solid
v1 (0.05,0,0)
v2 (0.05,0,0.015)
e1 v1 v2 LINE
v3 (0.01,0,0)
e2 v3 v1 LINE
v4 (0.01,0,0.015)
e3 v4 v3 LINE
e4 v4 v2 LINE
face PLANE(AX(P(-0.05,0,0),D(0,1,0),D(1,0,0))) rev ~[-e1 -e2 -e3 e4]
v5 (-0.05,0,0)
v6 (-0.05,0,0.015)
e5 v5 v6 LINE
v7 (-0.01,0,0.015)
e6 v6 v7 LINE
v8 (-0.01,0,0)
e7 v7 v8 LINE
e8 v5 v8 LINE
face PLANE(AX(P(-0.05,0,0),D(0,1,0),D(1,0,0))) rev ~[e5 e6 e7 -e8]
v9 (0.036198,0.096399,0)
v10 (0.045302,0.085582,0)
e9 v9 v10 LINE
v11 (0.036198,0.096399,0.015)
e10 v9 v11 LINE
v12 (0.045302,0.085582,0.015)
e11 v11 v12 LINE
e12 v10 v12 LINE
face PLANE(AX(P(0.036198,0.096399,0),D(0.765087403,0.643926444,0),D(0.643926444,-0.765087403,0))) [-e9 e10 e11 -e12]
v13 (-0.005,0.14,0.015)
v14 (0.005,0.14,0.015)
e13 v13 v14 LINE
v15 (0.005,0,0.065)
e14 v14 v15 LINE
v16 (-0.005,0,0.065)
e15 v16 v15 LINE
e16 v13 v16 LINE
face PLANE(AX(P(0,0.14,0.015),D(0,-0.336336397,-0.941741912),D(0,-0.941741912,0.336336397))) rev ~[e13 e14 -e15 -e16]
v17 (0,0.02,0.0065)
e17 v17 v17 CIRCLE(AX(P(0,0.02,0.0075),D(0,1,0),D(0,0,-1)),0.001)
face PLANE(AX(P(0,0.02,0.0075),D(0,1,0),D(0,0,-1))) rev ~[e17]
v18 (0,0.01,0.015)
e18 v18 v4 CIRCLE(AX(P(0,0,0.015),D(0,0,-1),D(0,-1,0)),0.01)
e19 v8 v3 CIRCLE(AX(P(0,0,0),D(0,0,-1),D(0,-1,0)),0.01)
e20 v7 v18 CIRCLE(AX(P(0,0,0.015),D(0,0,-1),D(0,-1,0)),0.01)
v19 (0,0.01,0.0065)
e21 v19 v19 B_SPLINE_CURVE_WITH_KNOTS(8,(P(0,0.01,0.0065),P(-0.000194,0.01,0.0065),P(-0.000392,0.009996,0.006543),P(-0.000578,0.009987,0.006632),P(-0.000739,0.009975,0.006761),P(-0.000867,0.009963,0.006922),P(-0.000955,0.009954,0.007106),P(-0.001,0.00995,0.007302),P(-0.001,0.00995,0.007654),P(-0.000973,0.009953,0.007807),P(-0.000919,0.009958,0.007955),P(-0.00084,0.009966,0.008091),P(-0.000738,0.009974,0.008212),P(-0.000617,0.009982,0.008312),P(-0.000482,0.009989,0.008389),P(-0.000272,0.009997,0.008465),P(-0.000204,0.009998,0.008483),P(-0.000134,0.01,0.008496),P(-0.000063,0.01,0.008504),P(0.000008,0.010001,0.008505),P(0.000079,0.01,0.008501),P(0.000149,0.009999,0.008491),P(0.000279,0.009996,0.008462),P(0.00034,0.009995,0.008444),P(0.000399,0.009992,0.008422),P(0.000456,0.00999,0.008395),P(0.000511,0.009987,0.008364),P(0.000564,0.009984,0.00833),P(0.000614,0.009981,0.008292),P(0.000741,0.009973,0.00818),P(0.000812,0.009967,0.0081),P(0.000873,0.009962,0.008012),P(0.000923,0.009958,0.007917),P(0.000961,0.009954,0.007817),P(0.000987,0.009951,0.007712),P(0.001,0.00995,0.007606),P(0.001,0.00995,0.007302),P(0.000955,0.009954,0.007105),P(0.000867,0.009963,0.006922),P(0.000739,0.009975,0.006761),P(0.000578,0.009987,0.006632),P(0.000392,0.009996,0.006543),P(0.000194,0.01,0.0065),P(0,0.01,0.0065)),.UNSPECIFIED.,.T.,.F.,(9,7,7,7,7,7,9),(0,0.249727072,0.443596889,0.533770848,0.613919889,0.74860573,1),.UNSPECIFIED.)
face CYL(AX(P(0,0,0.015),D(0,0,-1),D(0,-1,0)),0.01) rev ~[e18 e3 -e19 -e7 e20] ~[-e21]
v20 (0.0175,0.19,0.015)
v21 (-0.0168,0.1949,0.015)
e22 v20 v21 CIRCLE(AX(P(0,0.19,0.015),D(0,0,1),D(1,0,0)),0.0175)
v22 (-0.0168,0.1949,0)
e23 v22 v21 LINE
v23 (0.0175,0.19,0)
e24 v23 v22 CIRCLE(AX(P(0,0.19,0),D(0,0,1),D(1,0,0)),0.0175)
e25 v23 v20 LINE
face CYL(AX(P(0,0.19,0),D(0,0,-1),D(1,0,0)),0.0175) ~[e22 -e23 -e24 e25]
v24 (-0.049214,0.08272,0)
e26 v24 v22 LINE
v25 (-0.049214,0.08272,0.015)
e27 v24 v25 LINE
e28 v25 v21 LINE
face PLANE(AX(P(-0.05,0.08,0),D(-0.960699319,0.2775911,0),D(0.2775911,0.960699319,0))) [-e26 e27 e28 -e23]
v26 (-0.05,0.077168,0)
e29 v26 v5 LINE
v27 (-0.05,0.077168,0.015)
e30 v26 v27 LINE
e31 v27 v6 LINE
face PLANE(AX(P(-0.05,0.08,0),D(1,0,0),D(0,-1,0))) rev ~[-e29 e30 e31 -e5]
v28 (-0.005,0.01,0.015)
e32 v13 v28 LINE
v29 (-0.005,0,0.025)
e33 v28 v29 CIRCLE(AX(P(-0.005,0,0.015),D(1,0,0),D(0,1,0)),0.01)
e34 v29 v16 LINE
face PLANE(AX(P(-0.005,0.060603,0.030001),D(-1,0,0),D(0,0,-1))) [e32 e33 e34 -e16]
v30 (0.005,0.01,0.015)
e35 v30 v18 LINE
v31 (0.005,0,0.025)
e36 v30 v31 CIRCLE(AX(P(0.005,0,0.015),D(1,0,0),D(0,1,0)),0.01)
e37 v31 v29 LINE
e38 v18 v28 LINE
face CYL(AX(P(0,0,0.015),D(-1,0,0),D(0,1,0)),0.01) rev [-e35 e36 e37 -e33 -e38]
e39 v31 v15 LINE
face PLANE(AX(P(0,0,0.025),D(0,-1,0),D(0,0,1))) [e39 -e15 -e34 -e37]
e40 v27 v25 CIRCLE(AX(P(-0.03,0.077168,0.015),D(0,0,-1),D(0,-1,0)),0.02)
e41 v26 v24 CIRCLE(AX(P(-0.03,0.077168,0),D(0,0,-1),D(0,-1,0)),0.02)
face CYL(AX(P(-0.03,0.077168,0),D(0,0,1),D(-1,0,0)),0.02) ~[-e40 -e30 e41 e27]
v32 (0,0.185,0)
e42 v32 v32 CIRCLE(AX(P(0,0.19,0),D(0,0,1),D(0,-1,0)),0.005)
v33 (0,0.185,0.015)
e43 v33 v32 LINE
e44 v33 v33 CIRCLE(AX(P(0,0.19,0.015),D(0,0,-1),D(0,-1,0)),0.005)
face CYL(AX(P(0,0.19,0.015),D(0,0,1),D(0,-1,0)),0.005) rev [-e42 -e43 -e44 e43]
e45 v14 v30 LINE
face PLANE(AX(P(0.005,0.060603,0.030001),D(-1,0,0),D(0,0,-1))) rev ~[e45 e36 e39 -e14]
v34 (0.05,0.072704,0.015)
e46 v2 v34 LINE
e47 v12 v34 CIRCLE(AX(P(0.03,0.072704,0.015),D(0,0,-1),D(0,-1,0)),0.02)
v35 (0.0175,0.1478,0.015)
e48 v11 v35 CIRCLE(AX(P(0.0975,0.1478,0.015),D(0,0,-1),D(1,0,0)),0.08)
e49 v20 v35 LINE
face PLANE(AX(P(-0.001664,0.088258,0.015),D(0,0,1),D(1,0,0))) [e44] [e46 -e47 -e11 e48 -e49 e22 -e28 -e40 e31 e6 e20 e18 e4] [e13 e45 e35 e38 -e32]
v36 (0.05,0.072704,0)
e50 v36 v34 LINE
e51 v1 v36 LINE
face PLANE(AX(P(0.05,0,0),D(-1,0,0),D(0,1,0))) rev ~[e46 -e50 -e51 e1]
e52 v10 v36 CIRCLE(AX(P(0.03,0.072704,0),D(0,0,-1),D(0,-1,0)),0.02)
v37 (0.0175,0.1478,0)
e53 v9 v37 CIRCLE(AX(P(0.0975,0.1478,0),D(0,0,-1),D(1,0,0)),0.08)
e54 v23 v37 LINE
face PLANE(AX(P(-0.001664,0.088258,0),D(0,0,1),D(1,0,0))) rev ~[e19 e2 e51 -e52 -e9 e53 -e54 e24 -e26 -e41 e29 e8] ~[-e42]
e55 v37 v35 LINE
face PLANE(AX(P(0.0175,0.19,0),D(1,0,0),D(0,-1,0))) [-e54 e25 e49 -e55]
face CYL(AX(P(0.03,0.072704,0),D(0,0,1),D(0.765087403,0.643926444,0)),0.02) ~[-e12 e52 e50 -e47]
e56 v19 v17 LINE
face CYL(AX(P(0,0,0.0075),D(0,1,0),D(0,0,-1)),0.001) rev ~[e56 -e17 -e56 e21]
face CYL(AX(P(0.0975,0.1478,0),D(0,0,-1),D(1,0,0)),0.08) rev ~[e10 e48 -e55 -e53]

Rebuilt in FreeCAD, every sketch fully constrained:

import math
import FreeCAD as App
import Part
import Sketcher
from FreeCAD import Vector
Q = App.Units.Quantity


def edges_at(feature, points):
    """Names of the edges that pass closest to the given points."""
    edges = feature.Shape.Edges
    near = lambda p: min(range(len(edges)), key=lambda i: edges[i].distToShape(Part.Vertex(*p))[0])
    return sorted({f"Edge{near(p) + 1}" for p in points})

doc = App.newDocument("Part")
body = doc.addObject("PartDesign::Body", "Body")

# Sketch on XY plane
sketch1 = body.newObject("Sketcher::SketchObject", "Sketch")
sketch1.AttachmentSupport = (doc.getObject("XY_Plane"), [""])
sketch1.MapMode = "FlatFace"
sketch1.addGeometry([
    Part.LineSegment(Vector(-0.05, 0.08, 0), Vector(-0.05, 0, 0)),  # 0
    Part.LineSegment(Vector(-0.05, 0, 0), Vector(0.05, 0, 0)),  # 1
    Part.LineSegment(Vector(0.05, 0, 0), Vector(0.05, 0.08, 0)),  # 2
    Part.LineSegment(Vector(0.05, 0.08, 0), Vector(0.0362, 0.0964, 0)),  # 3
    Part.ArcOfCircle(Part.Circle(Vector(0.0975, 0.1478, 0), Vector(0, 0, 1), 0.079998), math.radians(180), math.radians(219.979805)),  # 4
    Part.LineSegment(Vector(0.0175, 0.1478, 0), Vector(0.0175, 0.19, 0)),  # 5
    Part.ArcOfCircle(Part.Circle(Vector(0, 0.19, 0), Vector(0, 0, 1), 0.0175), math.radians(0), math.radians(163.739795)),  # 6
    Part.LineSegment(Vector(-0.0168, 0.1949, 0), Vector(-0.05, 0.08, 0)),  # 7
], False)
sketch1.addConstraint([
    Sketcher.Constraint("Coincident", 0, 2, 1, 1),
    Sketcher.Constraint("Coincident", 1, 2, 2, 1),
    Sketcher.Constraint("Coincident", 2, 2, 3, 1),
    Sketcher.Constraint("Coincident", 3, 2, 4, 2),
    Sketcher.Constraint("Tangent", 4, 1, 5, 1),
    Sketcher.Constraint("Tangent", 5, 2, 6, 1),
    Sketcher.Constraint("Coincident", 6, 2, 7, 1),
    Sketcher.Constraint("Coincident", 7, 2, 0, 1),
    Sketcher.Constraint("Vertical", 0),
    Sketcher.Constraint("Horizontal", 1),
    Sketcher.Constraint("Vertical", 2),
    Sketcher.Constraint("Vertical", 5),
    Sketcher.Constraint("Symmetric", 0, 2, 1, 2, -1, 1),
    Sketcher.Constraint("PointOnObject", 6, 3, -2),
    Sketcher.Constraint("Horizontal", 2, 2, 7, 2),
    Sketcher.Constraint("DistanceX", 0, 2, -1, 1, 0.05),
    Sketcher.Constraint("Radius", 4, 0.08),
    Sketcher.Constraint("DistanceY", 0, 2, 0, 1, 0.08),
    Sketcher.Constraint("Angle", 3, Q("130.0794 deg")),
    Sketcher.Constraint("Radius", 6, 0.0175),
    Sketcher.Constraint("DistanceY", -1, 1, 6, 3, 0.19),
    Sketcher.Constraint("DistanceY", -1, 1, 6, 2, 0.195),
    Sketcher.Constraint("DistanceX", 6, 2, 3, 2, 0.053),
])
pad1 = body.newObject("PartDesign::Pad", "Pad")
pad1.Profile = sketch1
pad1.Length = 0.015

# Sketch on XZ plane
sketch2 = body.newObject("Sketcher::SketchObject", "Sketch001")
sketch2.AttachmentSupport = (doc.getObject("XZ_Plane"), [""])
sketch2.MapMode = "FlatFace"
sketch2.addGeometry(Part.Circle(Vector(0, 0.0075, 0), Vector(0, 0, 1), 0.001), False)
sketch2.addConstraint([
    Sketcher.Constraint("PointOnObject", 0, 3, -2),
    Sketcher.Constraint("Diameter", 0, 0.002),
    Sketcher.Constraint("DistanceY", -1, 1, 0, 3, 0.0075),
])
doc.recompute()
hole = body.newObject("PartDesign::Hole", "Hole")
hole.Profile = sketch2
hole.ThreadType = "None"
hole.Diameter = 0.002
hole.DepthType = "Dimension"
hole.Depth = 0.02
hole.DrillPoint = "Flat"

# Sketch on XY plane
sketch3 = body.newObject("Sketcher::SketchObject", "Sketch002")
sketch3.AttachmentSupport = (doc.getObject("XY_Plane"), [""])
sketch3.MapMode = "FlatFace"
sketch3.AttachmentOffset = App.Placement(Vector(0, 0, 0.015), App.Rotation())
sketch3.addGeometry(Part.Circle(Vector(0, 0.19, 0), Vector(0, 0, 1), 0.005), False)
sketch3.addConstraint([
    Sketcher.Constraint("PointOnObject", 0, 3, -2),
    Sketcher.Constraint("Diameter", 0, 0.01),
    Sketcher.Constraint("DistanceY", -1, 1, 0, 3, 0.19),
])
doc.recompute()
hole2 = body.newObject("PartDesign::Hole", "Hole001")
hole2.Profile = sketch3
hole2.ThreadType = "None"
hole2.Diameter = 0.01
hole2.DepthType = "ThroughAll"

# Sketch on XY plane
sketch4 = body.newObject("Sketcher::SketchObject", "Sketch003")
sketch4.AttachmentSupport = (doc.getObject("XY_Plane"), [""])
sketch4.MapMode = "FlatFace"
sketch4.AttachmentOffset = App.Placement(Vector(0, 0, 0.015), App.Rotation())
sketch4.addGeometry(Part.Circle(Vector(0, 0, 0), Vector(0, 0, 1), 0.01), False)
sketch4.addConstraint([
    Sketcher.Constraint("Coincident", 0, 3, -1, 1),
    Sketcher.Constraint("Diameter", 0, 0.02),
])
doc.recompute()
hole3 = body.newObject("PartDesign::Hole", "Hole002")
hole3.Profile = sketch4
hole3.ThreadType = "None"
hole3.Diameter = 0.02
hole3.DepthType = "Dimension"
hole3.Depth = 3.175
hole3.DrillPoint = "Flat"

# Sketch on YZ plane
sketch5 = body.newObject("Sketcher::SketchObject", "Sketch004")
sketch5.AttachmentSupport = (doc.getObject("YZ_Plane"), [""])
sketch5.MapMode = "FlatFace"
sketch5.addGeometry([
    Part.LineSegment(Vector(0.01, 0.015, 0), Vector(0.14, 0.015, 0)),
    Part.LineSegment(Vector(0.14, 0.015, 0), Vector(0, 0.065, 0)),
    Part.LineSegment(Vector(0, 0.065, 0), Vector(0, 0.025, 0)),
    Part.ArcOfCircle(Part.Circle(Vector(0, 0.015, 0), Vector(0, 0, 1), 0.01), math.radians(0), math.radians(90)),
], False)
sketch5.addConstraint([
    Sketcher.Constraint("Coincident", 0, 2, 1, 1),
    Sketcher.Constraint("Coincident", 1, 2, 2, 1),
    Sketcher.Constraint("Coincident", 2, 2, 3, 2),
    Sketcher.Constraint("Coincident", 3, 1, 0, 1),
    Sketcher.Constraint("Horizontal", 0),
    Sketcher.Constraint("Vertical", 2),
    Sketcher.Constraint("PointOnObject", 3, 3, -2),
    Sketcher.Constraint("PointOnObject", 1, 2, -2),
    Sketcher.Constraint("Horizontal", 3, 3, 0, 2),
    Sketcher.Constraint("Radius", 3, 0.01),
    Sketcher.Constraint("DistanceX", 0, 1, 0, 2, 0.13),
    Sketcher.Constraint("DistanceY", 2, 2, 2, 1, 0.04),
    Sketcher.Constraint("DistanceY", -1, 1, 3, 3, 0.015),
])
pad2 = body.newObject("PartDesign::Pad", "Pad001")
pad2.Profile = sketch5
pad2.Length = 0.01
pad2.Midplane = True
doc.recompute()

fillet = body.newObject("PartDesign::Fillet", "Fillet")
fillet.Base = (pad2, edges_at(pad2, [(0.05, 0.08, 0.007), (-0.05, 0.08, 0.007)]))
fillet.Radius = 0.02

doc.recompute()
